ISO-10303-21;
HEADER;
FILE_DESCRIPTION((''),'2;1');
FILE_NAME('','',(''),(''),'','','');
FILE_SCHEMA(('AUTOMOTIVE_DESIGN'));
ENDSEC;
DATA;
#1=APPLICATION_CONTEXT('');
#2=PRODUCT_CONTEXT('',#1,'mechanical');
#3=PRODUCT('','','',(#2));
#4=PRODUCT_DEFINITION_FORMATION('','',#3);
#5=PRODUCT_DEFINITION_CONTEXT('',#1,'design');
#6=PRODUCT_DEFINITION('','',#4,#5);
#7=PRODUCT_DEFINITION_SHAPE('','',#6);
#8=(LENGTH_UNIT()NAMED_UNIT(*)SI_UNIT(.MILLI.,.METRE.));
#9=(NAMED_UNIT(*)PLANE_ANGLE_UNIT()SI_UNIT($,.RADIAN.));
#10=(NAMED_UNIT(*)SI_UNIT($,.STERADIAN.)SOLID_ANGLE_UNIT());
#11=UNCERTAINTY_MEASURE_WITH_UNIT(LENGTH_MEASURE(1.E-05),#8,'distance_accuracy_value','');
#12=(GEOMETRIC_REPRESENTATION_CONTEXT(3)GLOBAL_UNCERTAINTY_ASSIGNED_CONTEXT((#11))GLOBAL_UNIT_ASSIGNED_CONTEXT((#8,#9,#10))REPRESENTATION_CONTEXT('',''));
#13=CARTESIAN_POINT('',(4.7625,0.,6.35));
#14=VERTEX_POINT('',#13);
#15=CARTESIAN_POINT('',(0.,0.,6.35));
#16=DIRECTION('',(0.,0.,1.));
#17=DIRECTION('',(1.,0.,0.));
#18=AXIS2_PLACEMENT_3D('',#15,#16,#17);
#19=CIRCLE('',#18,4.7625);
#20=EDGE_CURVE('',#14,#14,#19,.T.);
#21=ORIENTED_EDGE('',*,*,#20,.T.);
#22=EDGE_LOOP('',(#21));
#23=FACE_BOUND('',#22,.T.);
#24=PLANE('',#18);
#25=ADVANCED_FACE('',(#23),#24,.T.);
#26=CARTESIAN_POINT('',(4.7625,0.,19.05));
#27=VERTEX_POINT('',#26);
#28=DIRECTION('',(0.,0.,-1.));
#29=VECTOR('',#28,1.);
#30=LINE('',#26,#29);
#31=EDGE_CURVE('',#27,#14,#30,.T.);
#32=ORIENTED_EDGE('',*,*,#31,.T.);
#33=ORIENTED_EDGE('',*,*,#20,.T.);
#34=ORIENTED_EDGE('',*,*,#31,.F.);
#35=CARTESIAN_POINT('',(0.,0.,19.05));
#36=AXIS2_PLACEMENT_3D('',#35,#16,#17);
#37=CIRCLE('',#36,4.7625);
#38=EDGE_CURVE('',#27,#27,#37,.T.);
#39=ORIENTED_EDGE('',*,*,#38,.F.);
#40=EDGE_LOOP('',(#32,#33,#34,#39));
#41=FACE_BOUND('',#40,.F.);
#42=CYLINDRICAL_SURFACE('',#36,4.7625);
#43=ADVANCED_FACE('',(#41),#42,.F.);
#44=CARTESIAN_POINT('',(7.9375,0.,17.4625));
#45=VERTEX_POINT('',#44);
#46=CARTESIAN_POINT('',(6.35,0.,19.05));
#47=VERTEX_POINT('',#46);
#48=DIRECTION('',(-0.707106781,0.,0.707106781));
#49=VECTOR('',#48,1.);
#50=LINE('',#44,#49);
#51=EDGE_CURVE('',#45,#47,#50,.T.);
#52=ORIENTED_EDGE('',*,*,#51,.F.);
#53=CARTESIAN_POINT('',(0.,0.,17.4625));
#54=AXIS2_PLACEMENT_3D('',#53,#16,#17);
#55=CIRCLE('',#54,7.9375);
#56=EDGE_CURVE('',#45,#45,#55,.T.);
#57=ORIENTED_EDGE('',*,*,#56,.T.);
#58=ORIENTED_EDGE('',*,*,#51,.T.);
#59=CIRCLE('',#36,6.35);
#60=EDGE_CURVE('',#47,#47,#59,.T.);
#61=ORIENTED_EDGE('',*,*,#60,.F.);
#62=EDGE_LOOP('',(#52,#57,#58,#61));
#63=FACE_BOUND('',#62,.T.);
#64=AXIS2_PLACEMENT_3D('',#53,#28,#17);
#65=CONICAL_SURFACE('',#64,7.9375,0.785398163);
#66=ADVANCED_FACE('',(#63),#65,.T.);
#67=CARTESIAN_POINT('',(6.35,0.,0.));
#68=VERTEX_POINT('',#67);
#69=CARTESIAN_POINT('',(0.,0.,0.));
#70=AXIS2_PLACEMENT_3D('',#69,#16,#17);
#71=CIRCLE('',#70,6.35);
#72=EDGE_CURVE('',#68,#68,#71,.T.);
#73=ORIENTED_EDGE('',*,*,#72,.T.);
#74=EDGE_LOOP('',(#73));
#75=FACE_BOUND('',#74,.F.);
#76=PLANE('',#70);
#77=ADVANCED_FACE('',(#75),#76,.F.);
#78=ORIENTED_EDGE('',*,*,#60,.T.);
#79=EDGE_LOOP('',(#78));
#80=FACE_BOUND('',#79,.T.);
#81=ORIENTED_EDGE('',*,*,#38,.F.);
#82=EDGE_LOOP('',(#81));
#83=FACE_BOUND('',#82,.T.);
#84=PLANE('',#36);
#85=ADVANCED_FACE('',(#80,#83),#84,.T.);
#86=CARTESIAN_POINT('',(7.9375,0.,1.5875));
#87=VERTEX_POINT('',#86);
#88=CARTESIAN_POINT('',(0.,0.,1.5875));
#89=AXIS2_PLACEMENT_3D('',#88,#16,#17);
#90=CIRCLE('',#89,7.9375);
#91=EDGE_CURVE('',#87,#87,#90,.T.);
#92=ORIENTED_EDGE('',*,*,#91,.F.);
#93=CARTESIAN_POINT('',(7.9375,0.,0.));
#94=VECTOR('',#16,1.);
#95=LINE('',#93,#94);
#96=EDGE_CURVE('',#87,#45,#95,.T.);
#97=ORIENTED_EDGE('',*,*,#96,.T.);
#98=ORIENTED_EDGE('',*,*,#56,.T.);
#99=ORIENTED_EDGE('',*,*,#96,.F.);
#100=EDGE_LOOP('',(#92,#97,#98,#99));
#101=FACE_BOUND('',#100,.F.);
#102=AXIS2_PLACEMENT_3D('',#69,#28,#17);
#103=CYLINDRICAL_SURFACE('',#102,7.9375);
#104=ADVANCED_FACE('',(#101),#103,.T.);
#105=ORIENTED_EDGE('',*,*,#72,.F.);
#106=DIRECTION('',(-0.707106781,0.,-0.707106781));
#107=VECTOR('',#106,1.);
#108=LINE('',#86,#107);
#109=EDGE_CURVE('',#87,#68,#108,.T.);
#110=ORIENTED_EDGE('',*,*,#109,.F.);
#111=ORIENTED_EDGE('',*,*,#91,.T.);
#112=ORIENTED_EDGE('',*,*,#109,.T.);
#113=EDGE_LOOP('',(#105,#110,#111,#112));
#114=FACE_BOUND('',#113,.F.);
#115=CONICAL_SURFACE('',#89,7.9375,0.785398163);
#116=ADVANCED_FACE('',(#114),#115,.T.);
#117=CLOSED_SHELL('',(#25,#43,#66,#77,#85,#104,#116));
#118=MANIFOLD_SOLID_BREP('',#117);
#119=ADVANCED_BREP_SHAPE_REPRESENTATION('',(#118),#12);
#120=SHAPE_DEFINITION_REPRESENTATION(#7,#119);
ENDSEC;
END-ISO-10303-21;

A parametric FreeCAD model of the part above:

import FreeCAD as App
import Part
import Sketcher
Q = App.Units.Quantity


def edges_at(feature, points):
    """Names of the edges that pass closest to the given points."""
    edges = feature.Shape.Edges
    near = lambda p: min(range(len(edges)), key=lambda i: edges[i].distToShape(Part.Vertex(*p))[0])
    return sorted({f"Edge{near(p) + 1}" for p in points})

doc = App.newDocument("Part")
body = doc.addObject("PartDesign::Body", "Body")

# Sketch on XY plane
sketch1 = body.newObject("Sketcher::SketchObject", "Sketch")
sketch1.AttachmentSupport = (doc.getObject("XY_Plane"), [""])
sketch1.MapMode = "FlatFace"
sketch1.addGeometry(Part.Circle(App.Vector(0, 0, 0), App.Vector(0, 0, 1), 8), False)
sketch1.addConstraint([
    Sketcher.Constraint("Coincident", 0, 3, -1, 1),
    Sketcher.Constraint("Diameter", 0, Q("0.625 in")),
])
pad1 = body.newObject("PartDesign::Pad", "Pad")
pad1.Profile = sketch1
pad1.Length = Q("0.75 in")

# Sketch on XY plane
sketch2 = body.newObject("Sketcher::SketchObject", "Sketch001")
sketch2.AttachmentSupport = (doc.getObject("XY_Plane"), [""])
sketch2.MapMode = "FlatFace"
sketch2.AttachmentOffset = App.Placement(App.Vector(0, 0, 0.75 * 25.4), App.Rotation())
sketch2.addGeometry(Part.Circle(App.Vector(0, 0, 0), App.Vector(0, 0, 1), 4.8), False)
sketch2.addConstraint([
    Sketcher.Constraint("Coincident", 0, 3, -1, 1),
    Sketcher.Constraint("Diameter", 0, Q("0.375 in")),
])
pocket1 = body.newObject("PartDesign::Pocket", "Pocket")
pocket1.Profile = sketch2
pocket1.Length = Q("0.5 in")
doc.recompute()

chamfer = body.newObject("PartDesign::Chamfer", "Chamfer")
chamfer.Base = (pocket1, edges_at(pocket1, [(-7.938, 0, 19.05)]))
chamfer.Size = Q("0.0625 in")
doc.recompute()

chamfer2 = body.newObject("PartDesign::Chamfer", "Chamfer001")
chamfer2.Base = (chamfer, edges_at(chamfer, [(-7.938, 0, 0)]))
chamfer2.Size = Q("0.0625 in")

doc.recompute()
